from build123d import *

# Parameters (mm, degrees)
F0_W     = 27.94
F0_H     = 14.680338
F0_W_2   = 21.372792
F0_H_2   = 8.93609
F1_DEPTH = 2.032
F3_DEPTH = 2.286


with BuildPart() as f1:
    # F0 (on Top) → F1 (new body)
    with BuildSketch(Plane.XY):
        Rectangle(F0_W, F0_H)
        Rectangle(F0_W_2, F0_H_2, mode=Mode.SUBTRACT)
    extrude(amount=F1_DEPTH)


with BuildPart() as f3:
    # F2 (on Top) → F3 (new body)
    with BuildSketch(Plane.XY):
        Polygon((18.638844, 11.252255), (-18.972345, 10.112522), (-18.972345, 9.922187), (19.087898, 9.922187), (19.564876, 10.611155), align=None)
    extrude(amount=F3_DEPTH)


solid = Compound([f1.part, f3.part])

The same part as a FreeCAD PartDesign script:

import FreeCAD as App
import Part
import Sketcher

V = App.Vector
Q = App.Units.Quantity


def add_polygon(sketch, points):
    """Adds a closed chain of lines whose ends are joined by coincident constraints."""
    first, n = sketch.GeometryCount, len(points)
    for a, b in zip(points, points[1:] + points[:1]):
        sketch.addGeometry(Part.LineSegment(App.Vector(*a, 0), App.Vector(*b, 0)), False)
    for i in range(n):
        sketch.addConstraint(Sketcher.Constraint("Coincident", first + i, 2, first + (i + 1) % n, 1))

doc = App.newDocument("Part")
body = doc.addObject("PartDesign::Body", "Body")

sketch1 = body.newObject("Sketcher::SketchObject", "Sketch")
sketch1.AttachmentSupport = (doc.getObject("XY_Plane"), [""])
sketch1.MapMode = "FlatFace"
add_polygon(sketch1, [(-13.97, 7.340169), (-13.97, -7.340169), (13.97, -7.340169), (13.97, 7.340169)])
add_polygon(sketch1, [(10.686396, -4.468045), (-10.686396, -4.468045), (-10.686396, 4.468045), (10.686396, 4.468045)])
sketch1.addConstraint(Sketcher.Constraint("Vertical", 0))
sketch1.addConstraint(Sketcher.Constraint("Horizontal", 1))
sketch1.addConstraint(Sketcher.Constraint("Vertical", 2))
sketch1.addConstraint(Sketcher.Constraint("Horizontal", 3))
sketch1.addConstraint(Sketcher.Constraint("Horizontal", 4))
sketch1.addConstraint(Sketcher.Constraint("Vertical", 5))
sketch1.addConstraint(Sketcher.Constraint("Horizontal", 6))
sketch1.addConstraint(Sketcher.Constraint("Vertical", 7))
sketch1.addConstraint(Sketcher.Constraint("Symmetric", 0, 2, 2, 2, -1, 1))
sketch1.addConstraint(Sketcher.Constraint("Symmetric", 4, 2, 6, 2, -1, 1))
sketch1.addConstraint(Sketcher.Constraint("DistanceX", 1, 1, 1, 2, Q("1.1 in")))
sketch1.addConstraint(Sketcher.Constraint("DistanceY", 0, 2, 0, 1, Q("14.680338 mm")))
sketch1.addConstraint(Sketcher.Constraint("DistanceY", 5, 1, 5, 2, Q("8.93609 mm")))
sketch1.addConstraint(Sketcher.Constraint("DistanceX", 4, 2, 4, 1, Q("21.372792 mm")))
pad1 = body.newObject("PartDesign::Pad", "Pad")
pad1.Profile = sketch1
pad1.Length = Q("0.08 in")
body2 = doc.addObject("PartDesign::Body", "Body001")

sketch2 = body2.newObject("Sketcher::SketchObject", "Sketch001")
sketch2.AttachmentSupport = (doc.getObject("XY_Plane001"), [""])
sketch2.MapMode = "FlatFace"
add_polygon(sketch2, [(18.638844, 11.252255), (-18.972345, 10.112522), (-18.972345, 9.922187), (19.087898, 9.922187), (19.564876, 10.611155)])
sketch2.addConstraint(Sketcher.Constraint("Vertical", 1))
sketch2.addConstraint(Sketcher.Constraint("Horizontal", 2))
sketch2.addConstraint(Sketcher.Constraint("Perpendicular", 3, 4))
sketch2.addConstraint(Sketcher.Constraint("DistanceY", 3, 2, 4, 2, Q("0.6411 mm")))
sketch2.addConstraint(Sketcher.Constraint("DistanceX", 2, 1, 2, 2, Q("38.060243 mm")))
sketch2.addConstraint(Sketcher.Constraint("DistanceY", 1, 2, 1, 1, Q("0.190335 mm")))
sketch2.addConstraint(Sketcher.Constraint("DistanceX", 2, 2, 3, 2, Q("0.476978 mm")))
sketch2.addConstraint(Sketcher.Constraint("DistanceY", 2, 2, 3, 2, Q("0.688968 mm")))
sketch2.addConstraint(Sketcher.Constraint("DistanceX", 0, 2, -1, 1, Q("18.972345 mm")))
sketch2.addConstraint(Sketcher.Constraint("DistanceY", -1, 1, 0, 2, Q("10.112522 mm")))
pad2 = body2.newObject("PartDesign::Pad", "Pad001")
pad2.Profile = sketch2
pad2.Length = Q("0.09 in")

doc.recompute()
